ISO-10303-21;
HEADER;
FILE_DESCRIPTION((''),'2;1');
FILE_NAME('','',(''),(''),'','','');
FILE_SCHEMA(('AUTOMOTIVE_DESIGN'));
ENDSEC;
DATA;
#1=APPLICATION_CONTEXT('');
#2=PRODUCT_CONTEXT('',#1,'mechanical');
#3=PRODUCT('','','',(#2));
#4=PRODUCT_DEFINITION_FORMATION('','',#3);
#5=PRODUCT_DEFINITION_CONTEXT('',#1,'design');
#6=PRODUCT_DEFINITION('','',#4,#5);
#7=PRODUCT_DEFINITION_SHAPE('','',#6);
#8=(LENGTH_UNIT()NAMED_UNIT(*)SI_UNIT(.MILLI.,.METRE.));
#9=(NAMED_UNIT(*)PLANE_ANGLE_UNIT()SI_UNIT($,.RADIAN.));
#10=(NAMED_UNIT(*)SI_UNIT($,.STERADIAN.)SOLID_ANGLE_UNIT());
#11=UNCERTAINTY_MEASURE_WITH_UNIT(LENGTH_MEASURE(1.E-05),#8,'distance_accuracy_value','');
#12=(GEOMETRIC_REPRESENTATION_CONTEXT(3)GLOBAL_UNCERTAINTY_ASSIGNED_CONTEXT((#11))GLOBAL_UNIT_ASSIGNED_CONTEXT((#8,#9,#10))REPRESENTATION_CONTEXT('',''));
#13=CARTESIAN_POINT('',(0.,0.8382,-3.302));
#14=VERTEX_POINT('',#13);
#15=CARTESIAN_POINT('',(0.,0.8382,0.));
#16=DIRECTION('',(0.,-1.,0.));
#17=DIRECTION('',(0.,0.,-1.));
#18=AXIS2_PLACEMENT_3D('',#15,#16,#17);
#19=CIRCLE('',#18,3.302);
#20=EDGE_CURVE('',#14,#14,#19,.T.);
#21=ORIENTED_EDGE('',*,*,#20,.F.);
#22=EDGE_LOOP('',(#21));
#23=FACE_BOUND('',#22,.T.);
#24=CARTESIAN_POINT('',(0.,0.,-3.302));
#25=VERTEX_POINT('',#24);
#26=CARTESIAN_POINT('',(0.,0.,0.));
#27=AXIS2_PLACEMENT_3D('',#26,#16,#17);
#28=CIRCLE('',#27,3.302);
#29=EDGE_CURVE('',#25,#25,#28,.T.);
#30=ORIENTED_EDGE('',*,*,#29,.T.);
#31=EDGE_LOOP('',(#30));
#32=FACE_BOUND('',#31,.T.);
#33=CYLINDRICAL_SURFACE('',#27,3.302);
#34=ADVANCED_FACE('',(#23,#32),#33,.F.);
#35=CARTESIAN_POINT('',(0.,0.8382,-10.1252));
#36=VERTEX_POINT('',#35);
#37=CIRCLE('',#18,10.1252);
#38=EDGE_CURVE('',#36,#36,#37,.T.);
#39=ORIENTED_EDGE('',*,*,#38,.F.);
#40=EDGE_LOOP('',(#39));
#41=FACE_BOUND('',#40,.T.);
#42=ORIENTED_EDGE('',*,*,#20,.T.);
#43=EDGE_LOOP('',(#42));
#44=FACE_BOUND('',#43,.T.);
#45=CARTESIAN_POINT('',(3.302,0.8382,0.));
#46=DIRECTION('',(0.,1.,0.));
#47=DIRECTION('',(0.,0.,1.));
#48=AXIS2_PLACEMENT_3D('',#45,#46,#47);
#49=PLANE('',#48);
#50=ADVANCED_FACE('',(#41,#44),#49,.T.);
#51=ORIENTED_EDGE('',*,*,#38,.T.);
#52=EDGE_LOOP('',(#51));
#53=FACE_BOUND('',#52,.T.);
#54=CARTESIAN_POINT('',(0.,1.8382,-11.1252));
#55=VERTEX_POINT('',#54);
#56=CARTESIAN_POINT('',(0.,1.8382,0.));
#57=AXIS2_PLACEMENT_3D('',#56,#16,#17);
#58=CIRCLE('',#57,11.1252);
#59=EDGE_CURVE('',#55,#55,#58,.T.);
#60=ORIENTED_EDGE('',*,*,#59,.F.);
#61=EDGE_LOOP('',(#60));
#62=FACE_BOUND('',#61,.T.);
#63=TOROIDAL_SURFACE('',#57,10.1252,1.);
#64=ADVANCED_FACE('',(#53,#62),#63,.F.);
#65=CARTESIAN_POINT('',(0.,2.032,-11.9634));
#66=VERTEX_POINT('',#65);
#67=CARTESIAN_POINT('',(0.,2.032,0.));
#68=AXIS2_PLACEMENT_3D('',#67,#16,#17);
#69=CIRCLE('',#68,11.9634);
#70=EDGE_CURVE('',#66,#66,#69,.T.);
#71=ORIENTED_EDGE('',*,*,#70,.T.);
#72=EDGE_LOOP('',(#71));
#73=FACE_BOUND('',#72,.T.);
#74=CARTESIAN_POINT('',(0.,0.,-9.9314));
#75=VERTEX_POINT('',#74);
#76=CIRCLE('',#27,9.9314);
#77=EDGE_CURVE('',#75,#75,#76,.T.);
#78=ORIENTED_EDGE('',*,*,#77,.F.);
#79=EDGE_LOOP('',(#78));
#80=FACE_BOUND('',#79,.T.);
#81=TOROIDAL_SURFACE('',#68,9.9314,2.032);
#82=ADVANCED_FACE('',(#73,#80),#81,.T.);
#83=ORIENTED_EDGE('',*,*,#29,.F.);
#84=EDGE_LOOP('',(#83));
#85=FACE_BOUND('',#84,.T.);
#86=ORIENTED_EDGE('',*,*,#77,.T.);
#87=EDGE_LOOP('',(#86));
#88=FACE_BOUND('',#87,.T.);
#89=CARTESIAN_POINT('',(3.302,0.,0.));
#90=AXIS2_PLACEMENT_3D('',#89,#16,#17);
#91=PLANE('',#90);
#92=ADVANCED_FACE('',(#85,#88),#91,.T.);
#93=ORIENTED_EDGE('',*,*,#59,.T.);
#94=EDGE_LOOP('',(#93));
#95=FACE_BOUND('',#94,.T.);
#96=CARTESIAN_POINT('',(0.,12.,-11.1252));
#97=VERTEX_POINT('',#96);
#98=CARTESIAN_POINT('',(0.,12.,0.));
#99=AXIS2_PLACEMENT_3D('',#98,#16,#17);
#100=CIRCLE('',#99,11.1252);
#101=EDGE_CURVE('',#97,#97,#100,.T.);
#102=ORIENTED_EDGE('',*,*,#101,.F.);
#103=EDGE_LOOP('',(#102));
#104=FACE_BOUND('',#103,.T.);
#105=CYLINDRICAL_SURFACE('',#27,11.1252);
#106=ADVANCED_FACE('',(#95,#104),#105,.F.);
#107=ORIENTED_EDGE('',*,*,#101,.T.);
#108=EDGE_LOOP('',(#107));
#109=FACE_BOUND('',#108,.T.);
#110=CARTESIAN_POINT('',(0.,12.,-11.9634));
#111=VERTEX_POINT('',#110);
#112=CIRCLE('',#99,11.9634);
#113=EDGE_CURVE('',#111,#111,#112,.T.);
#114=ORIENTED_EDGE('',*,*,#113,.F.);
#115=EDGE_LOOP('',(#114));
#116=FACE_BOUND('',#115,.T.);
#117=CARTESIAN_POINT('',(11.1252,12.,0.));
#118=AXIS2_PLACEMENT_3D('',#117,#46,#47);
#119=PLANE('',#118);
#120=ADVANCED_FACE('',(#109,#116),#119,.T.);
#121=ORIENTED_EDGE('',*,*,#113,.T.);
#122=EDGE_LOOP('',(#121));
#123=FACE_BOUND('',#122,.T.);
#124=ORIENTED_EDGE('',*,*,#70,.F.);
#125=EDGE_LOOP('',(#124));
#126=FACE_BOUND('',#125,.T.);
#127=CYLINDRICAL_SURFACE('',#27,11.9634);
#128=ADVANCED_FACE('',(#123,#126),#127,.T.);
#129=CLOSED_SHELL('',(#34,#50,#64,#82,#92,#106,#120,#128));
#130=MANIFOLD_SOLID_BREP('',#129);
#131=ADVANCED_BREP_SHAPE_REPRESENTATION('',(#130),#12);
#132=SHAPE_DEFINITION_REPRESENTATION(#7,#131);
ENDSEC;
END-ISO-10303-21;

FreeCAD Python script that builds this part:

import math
import FreeCAD as App
import Part
import Sketcher
from FreeCAD import Vector
Q = App.Units.Quantity

doc = App.newDocument("Part")
params = doc.addObject("Spreadsheet::Sheet", "Params")
for row, (alias, value) in enumerate([
    ("sketch1_radius", "0.08 in"),
    ("sketch1_width", "0.261 in"),
    ("sketch1_width2", "0.033 in"),
    ("revolution_angle", "360 deg"),
], start=1):
    params.set(f"A{row}", alias)
    params.set(f"B{row}", "=" + value)
    params.setAlias(f"B{row}", alias)

body = doc.addObject("PartDesign::Body", "Body")

sketch1 = body.newObject("Sketcher::SketchObject", "Sketch")
sketch1.AttachmentSupport = (doc.getObject("XY_Plane"), [""])
sketch1.MapMode = "FlatFace"
sketch1.addGeometry([
    Part.LineSegment(Vector(3.302, 0, 0), Vector(9.9314, 0, 0)),
    Part.ArcOfCircle(Part.Circle(Vector(9.9314, 2.032, 0), Vector(0, 0, 1), 2.032), math.radians(-90), math.radians(0)),
    Part.LineSegment(Vector(11.9634, 2.032, 0), Vector(11.9634, 12, 0)),
    Part.LineSegment(Vector(11.9634, 12, 0), Vector(11.1252, 12, 0)),
    Part.LineSegment(Vector(11.1252, 12, 0), Vector(11.1252, 1.8382, 0)),
    Part.ArcOfCircle(Part.Circle(Vector(10.1252, 1.8382, 0), Vector(0, 0, 1), 1), math.radians(-90), math.radians(0)),
    Part.LineSegment(Vector(10.1252, 0.8382, 0), Vector(3.302, 0.8382, 0)),
    Part.LineSegment(Vector(3.302, 0.8382, 0), Vector(3.302, 0, 0)),
], False)
sketch1.addConstraint([
    Sketcher.Constraint("Tangent", 0, 2, 1, 1),
    Sketcher.Constraint("Tangent", 1, 2, 2, 1),
    Sketcher.Constraint("Coincident", 2, 2, 3, 1),
    Sketcher.Constraint("Coincident", 3, 2, 4, 1),
    Sketcher.Constraint("Tangent", 4, 2, 5, 2),
    Sketcher.Constraint("Tangent", 5, 1, 6, 1),
    Sketcher.Constraint("Coincident", 6, 2, 7, 1),
    Sketcher.Constraint("Coincident", 7, 2, 0, 1),
    Sketcher.Constraint("Horizontal", 0),
    Sketcher.Constraint("Vertical", 2),
    Sketcher.Constraint("Horizontal", 3),
    Sketcher.Constraint("Vertical", 4),
    Sketcher.Constraint("Horizontal", 6),
    Sketcher.Constraint("Vertical", 7),
    Sketcher.Constraint("PointOnObject", 0, 2, -1),
    Sketcher.Constraint("Equal", 3, 7),
    Sketcher.Constraint("Radius", 1, Q("0.08 in")),
    Sketcher.Constraint("DistanceX", 0, 1, 0, 2, Q("0.261 in")),
    Sketcher.Constraint("DistanceX", 3, 2, 3, 1, Q("0.033 in")),
    Sketcher.Constraint("DistanceX", -1, 1, 6, 2, Q("0.13 in")),
    Sketcher.Constraint("Radius", 5, Q("1 mm")),
    Sketcher.Constraint("DistanceY", 2, 1, 2, 2, Q("9.968 mm")),
])
sketch1.setExpression("Constraints[16]", "Params.sketch1_radius")
sketch1.setExpression("Constraints[17]", "Params.sketch1_width")
sketch1.setExpression("Constraints[18]", "Params.sketch1_width2")
revolution = body.newObject("PartDesign::Revolution", "Revolution")
revolution.Profile = sketch1
revolution.ReferenceAxis = (sketch1, ["V_Axis"])
revolution.setExpression("Angle", "Params.revolution_angle")

doc.recompute()
